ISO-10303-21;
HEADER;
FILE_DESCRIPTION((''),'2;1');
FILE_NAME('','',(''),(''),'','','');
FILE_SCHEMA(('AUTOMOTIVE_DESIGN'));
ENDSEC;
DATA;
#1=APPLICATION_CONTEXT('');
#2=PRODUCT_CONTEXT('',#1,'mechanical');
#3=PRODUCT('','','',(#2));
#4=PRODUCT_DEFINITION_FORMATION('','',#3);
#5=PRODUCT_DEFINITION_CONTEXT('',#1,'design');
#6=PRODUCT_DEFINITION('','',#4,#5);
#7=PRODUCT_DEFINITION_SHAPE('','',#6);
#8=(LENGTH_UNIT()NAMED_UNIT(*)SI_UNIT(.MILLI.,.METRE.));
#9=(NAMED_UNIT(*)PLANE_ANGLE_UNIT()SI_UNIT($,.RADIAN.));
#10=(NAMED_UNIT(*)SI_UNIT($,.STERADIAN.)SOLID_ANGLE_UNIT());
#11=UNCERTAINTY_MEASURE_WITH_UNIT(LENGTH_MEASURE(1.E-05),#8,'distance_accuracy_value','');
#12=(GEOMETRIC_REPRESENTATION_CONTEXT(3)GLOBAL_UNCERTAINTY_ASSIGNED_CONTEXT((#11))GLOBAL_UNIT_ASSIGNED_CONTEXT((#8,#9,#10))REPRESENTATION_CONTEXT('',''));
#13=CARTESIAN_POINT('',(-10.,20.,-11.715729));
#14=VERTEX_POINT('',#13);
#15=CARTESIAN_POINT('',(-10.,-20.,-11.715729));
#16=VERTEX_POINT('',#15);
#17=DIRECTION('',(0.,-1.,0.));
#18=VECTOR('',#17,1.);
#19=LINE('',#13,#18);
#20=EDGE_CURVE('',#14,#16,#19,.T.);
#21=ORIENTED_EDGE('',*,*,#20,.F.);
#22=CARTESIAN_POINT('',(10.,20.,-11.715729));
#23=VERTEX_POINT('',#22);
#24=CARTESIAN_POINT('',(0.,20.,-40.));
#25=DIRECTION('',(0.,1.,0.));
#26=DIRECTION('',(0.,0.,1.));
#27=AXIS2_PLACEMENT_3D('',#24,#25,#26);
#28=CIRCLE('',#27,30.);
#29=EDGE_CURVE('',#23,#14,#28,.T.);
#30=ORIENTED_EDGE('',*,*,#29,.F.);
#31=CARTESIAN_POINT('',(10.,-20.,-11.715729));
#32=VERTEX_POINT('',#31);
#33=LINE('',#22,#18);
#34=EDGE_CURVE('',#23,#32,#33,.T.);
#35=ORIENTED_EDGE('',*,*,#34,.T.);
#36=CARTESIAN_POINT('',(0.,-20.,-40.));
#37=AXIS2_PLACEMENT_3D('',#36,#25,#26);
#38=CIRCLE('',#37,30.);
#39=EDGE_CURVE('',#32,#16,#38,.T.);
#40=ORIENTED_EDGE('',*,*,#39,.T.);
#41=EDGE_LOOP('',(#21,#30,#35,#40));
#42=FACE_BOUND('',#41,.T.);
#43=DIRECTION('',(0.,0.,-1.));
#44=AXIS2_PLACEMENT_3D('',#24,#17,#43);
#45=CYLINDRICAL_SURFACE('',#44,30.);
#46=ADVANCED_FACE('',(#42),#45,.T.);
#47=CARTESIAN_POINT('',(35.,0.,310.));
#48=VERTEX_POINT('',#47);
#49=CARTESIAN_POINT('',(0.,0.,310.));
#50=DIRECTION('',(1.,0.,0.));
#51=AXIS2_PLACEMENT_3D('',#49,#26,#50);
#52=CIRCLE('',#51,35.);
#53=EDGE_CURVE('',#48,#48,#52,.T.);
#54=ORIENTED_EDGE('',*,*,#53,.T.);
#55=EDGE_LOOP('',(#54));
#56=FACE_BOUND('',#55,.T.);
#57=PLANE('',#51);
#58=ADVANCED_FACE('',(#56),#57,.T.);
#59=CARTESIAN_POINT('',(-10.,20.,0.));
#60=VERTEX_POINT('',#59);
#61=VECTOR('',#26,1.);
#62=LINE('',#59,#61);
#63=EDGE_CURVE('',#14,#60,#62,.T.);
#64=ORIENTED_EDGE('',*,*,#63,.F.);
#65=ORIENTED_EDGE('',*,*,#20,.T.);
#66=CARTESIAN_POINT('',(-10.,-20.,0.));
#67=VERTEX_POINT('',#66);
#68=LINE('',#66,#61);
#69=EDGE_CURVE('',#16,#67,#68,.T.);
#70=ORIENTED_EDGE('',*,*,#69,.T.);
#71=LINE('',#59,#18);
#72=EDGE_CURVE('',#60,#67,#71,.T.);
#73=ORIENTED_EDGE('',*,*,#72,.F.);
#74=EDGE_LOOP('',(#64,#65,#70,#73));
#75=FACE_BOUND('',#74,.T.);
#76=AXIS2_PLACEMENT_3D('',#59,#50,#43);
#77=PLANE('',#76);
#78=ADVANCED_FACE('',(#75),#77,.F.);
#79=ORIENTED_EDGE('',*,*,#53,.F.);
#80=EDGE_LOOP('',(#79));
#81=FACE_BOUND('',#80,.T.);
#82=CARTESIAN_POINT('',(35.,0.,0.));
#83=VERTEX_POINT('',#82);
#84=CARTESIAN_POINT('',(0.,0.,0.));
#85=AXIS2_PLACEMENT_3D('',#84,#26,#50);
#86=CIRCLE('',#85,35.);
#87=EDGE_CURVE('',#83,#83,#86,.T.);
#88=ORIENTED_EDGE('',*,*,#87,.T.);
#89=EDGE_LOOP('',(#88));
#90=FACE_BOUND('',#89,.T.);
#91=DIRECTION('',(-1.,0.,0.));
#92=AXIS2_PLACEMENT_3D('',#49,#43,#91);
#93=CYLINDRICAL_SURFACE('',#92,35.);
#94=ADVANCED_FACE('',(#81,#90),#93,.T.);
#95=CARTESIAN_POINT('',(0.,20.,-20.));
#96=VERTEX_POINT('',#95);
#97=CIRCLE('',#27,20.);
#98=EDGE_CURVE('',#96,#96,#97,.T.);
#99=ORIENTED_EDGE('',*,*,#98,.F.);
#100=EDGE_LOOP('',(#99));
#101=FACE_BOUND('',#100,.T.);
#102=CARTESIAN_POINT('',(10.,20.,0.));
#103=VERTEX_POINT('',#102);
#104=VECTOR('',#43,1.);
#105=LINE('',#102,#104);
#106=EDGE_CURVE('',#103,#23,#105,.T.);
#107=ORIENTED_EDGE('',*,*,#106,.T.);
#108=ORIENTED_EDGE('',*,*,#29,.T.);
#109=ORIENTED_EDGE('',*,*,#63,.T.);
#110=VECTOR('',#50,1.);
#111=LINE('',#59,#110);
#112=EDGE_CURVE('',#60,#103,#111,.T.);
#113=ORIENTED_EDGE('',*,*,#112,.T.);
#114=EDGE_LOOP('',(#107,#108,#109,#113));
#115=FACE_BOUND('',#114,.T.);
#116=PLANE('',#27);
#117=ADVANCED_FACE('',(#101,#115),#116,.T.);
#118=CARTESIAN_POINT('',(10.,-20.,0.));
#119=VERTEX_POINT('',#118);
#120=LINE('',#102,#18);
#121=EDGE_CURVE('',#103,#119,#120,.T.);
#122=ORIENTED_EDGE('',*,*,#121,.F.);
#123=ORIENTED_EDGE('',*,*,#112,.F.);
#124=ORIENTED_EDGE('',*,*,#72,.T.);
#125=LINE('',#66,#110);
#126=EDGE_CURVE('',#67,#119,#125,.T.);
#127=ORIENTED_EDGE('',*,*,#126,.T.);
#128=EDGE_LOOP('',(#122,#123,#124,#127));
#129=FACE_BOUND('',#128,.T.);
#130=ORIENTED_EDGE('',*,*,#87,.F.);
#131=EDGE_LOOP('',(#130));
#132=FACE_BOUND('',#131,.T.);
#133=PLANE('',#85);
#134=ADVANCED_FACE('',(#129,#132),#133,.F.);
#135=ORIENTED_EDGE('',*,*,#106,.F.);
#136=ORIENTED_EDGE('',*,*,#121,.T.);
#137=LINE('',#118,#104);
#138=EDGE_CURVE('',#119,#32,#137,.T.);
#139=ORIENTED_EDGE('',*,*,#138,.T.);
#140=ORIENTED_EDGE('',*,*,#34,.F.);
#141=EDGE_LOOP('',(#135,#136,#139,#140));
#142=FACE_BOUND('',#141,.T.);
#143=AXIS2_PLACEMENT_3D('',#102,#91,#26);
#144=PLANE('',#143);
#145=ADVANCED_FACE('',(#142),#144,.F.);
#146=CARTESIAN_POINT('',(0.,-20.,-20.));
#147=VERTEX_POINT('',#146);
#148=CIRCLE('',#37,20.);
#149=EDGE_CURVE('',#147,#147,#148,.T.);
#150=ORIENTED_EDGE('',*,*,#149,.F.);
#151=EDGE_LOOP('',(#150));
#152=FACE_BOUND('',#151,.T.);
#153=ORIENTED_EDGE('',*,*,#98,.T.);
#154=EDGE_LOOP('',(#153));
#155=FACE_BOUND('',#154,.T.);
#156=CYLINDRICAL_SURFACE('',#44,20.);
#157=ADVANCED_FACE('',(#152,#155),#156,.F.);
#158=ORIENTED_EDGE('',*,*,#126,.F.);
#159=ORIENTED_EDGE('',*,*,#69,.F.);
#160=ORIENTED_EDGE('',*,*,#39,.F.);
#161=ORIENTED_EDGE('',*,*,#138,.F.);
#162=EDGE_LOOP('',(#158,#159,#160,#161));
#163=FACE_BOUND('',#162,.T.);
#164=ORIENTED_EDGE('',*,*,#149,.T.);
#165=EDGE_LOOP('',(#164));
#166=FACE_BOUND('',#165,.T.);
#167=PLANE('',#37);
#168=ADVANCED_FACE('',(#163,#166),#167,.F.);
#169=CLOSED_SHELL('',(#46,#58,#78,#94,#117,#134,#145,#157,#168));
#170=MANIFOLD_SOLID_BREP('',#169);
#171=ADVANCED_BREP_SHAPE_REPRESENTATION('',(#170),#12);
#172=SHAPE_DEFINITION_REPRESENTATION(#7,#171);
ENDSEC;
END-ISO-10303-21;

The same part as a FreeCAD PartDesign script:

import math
import FreeCAD as App
import Part
import Sketcher

doc = App.newDocument("Part")
body = doc.addObject("PartDesign::Body", "Body")

# Sketch on XY plane
sketch1 = body.newObject("Sketcher::SketchObject", "Sketch")
sketch1.AttachmentSupport = (doc.getObject("XY_Plane"), [""])
sketch1.MapMode = "FlatFace"
sketch1.addGeometry(Part.Circle(App.Vector(0, 0, 0), App.Vector(0, 0, 1), 35), False)
sketch1.addConstraint([
    Sketcher.Constraint("Coincident", 0, 3, -1, 1),
    Sketcher.Constraint("Diameter", 0, 70.0),
])
pad1 = body.newObject("PartDesign::Pad", "Pad")
pad1.Profile = sketch1
pad1.Length = 310

# Sketch on XZ plane
sketch2 = body.newObject("Sketcher::SketchObject", "Sketch001")
sketch2.AttachmentSupport = (doc.getObject("XZ_Plane"), [""])
sketch2.MapMode = "FlatFace"
sketch2.addGeometry([
    Part.LineSegment(App.Vector(-10, -11.715729, 0), App.Vector(-10, 0, 0)),  # 0
    Part.LineSegment(App.Vector(-10, 0, 0), App.Vector(10, 0, 0)),  # 1
    Part.LineSegment(App.Vector(10, 0, 0), App.Vector(10, -11.715729, 0)),  # 2
    Part.ArcOfCircle(Part.Circle(App.Vector(0, -40, 0), App.Vector(0, 0, 1), 30), math.radians(109.471221), math.radians(430.528779)),  # 3
    Part.Circle(App.Vector(0, -40, 0), App.Vector(0, 0, 1), 20),  # 4
], False)
sketch2.addConstraint([
    Sketcher.Constraint("Coincident", 0, 2, 1, 1),
    Sketcher.Constraint("Coincident", 1, 2, 2, 1),
    Sketcher.Constraint("Coincident", 2, 2, 3, 2),
    Sketcher.Constraint("Coincident", 3, 1, 0, 1),
    Sketcher.Constraint("Vertical", 0),
    Sketcher.Constraint("Horizontal", 1),
    Sketcher.Constraint("Vertical", 2),
    Sketcher.Constraint("Coincident", 4, 3, 3, 3),
    Sketcher.Constraint("Symmetric", 0, 2, 1, 2, -1, 1),
    Sketcher.Constraint("PointOnObject", 3, 3, -2),
    Sketcher.Constraint("Diameter", 4, 40.0),
    Sketcher.Constraint("Radius", 3, 30.0),
    Sketcher.Constraint("DistanceX", 1, 1, 1, 2, 20.0),
    Sketcher.Constraint("DistanceY", 3, 3, -1, 1, 40.0),
])
pad2 = body.newObject("PartDesign::Pad", "Pad001")
pad2.Profile = sketch2
pad2.Length = 40
pad2.Midplane = True

doc.recompute()
